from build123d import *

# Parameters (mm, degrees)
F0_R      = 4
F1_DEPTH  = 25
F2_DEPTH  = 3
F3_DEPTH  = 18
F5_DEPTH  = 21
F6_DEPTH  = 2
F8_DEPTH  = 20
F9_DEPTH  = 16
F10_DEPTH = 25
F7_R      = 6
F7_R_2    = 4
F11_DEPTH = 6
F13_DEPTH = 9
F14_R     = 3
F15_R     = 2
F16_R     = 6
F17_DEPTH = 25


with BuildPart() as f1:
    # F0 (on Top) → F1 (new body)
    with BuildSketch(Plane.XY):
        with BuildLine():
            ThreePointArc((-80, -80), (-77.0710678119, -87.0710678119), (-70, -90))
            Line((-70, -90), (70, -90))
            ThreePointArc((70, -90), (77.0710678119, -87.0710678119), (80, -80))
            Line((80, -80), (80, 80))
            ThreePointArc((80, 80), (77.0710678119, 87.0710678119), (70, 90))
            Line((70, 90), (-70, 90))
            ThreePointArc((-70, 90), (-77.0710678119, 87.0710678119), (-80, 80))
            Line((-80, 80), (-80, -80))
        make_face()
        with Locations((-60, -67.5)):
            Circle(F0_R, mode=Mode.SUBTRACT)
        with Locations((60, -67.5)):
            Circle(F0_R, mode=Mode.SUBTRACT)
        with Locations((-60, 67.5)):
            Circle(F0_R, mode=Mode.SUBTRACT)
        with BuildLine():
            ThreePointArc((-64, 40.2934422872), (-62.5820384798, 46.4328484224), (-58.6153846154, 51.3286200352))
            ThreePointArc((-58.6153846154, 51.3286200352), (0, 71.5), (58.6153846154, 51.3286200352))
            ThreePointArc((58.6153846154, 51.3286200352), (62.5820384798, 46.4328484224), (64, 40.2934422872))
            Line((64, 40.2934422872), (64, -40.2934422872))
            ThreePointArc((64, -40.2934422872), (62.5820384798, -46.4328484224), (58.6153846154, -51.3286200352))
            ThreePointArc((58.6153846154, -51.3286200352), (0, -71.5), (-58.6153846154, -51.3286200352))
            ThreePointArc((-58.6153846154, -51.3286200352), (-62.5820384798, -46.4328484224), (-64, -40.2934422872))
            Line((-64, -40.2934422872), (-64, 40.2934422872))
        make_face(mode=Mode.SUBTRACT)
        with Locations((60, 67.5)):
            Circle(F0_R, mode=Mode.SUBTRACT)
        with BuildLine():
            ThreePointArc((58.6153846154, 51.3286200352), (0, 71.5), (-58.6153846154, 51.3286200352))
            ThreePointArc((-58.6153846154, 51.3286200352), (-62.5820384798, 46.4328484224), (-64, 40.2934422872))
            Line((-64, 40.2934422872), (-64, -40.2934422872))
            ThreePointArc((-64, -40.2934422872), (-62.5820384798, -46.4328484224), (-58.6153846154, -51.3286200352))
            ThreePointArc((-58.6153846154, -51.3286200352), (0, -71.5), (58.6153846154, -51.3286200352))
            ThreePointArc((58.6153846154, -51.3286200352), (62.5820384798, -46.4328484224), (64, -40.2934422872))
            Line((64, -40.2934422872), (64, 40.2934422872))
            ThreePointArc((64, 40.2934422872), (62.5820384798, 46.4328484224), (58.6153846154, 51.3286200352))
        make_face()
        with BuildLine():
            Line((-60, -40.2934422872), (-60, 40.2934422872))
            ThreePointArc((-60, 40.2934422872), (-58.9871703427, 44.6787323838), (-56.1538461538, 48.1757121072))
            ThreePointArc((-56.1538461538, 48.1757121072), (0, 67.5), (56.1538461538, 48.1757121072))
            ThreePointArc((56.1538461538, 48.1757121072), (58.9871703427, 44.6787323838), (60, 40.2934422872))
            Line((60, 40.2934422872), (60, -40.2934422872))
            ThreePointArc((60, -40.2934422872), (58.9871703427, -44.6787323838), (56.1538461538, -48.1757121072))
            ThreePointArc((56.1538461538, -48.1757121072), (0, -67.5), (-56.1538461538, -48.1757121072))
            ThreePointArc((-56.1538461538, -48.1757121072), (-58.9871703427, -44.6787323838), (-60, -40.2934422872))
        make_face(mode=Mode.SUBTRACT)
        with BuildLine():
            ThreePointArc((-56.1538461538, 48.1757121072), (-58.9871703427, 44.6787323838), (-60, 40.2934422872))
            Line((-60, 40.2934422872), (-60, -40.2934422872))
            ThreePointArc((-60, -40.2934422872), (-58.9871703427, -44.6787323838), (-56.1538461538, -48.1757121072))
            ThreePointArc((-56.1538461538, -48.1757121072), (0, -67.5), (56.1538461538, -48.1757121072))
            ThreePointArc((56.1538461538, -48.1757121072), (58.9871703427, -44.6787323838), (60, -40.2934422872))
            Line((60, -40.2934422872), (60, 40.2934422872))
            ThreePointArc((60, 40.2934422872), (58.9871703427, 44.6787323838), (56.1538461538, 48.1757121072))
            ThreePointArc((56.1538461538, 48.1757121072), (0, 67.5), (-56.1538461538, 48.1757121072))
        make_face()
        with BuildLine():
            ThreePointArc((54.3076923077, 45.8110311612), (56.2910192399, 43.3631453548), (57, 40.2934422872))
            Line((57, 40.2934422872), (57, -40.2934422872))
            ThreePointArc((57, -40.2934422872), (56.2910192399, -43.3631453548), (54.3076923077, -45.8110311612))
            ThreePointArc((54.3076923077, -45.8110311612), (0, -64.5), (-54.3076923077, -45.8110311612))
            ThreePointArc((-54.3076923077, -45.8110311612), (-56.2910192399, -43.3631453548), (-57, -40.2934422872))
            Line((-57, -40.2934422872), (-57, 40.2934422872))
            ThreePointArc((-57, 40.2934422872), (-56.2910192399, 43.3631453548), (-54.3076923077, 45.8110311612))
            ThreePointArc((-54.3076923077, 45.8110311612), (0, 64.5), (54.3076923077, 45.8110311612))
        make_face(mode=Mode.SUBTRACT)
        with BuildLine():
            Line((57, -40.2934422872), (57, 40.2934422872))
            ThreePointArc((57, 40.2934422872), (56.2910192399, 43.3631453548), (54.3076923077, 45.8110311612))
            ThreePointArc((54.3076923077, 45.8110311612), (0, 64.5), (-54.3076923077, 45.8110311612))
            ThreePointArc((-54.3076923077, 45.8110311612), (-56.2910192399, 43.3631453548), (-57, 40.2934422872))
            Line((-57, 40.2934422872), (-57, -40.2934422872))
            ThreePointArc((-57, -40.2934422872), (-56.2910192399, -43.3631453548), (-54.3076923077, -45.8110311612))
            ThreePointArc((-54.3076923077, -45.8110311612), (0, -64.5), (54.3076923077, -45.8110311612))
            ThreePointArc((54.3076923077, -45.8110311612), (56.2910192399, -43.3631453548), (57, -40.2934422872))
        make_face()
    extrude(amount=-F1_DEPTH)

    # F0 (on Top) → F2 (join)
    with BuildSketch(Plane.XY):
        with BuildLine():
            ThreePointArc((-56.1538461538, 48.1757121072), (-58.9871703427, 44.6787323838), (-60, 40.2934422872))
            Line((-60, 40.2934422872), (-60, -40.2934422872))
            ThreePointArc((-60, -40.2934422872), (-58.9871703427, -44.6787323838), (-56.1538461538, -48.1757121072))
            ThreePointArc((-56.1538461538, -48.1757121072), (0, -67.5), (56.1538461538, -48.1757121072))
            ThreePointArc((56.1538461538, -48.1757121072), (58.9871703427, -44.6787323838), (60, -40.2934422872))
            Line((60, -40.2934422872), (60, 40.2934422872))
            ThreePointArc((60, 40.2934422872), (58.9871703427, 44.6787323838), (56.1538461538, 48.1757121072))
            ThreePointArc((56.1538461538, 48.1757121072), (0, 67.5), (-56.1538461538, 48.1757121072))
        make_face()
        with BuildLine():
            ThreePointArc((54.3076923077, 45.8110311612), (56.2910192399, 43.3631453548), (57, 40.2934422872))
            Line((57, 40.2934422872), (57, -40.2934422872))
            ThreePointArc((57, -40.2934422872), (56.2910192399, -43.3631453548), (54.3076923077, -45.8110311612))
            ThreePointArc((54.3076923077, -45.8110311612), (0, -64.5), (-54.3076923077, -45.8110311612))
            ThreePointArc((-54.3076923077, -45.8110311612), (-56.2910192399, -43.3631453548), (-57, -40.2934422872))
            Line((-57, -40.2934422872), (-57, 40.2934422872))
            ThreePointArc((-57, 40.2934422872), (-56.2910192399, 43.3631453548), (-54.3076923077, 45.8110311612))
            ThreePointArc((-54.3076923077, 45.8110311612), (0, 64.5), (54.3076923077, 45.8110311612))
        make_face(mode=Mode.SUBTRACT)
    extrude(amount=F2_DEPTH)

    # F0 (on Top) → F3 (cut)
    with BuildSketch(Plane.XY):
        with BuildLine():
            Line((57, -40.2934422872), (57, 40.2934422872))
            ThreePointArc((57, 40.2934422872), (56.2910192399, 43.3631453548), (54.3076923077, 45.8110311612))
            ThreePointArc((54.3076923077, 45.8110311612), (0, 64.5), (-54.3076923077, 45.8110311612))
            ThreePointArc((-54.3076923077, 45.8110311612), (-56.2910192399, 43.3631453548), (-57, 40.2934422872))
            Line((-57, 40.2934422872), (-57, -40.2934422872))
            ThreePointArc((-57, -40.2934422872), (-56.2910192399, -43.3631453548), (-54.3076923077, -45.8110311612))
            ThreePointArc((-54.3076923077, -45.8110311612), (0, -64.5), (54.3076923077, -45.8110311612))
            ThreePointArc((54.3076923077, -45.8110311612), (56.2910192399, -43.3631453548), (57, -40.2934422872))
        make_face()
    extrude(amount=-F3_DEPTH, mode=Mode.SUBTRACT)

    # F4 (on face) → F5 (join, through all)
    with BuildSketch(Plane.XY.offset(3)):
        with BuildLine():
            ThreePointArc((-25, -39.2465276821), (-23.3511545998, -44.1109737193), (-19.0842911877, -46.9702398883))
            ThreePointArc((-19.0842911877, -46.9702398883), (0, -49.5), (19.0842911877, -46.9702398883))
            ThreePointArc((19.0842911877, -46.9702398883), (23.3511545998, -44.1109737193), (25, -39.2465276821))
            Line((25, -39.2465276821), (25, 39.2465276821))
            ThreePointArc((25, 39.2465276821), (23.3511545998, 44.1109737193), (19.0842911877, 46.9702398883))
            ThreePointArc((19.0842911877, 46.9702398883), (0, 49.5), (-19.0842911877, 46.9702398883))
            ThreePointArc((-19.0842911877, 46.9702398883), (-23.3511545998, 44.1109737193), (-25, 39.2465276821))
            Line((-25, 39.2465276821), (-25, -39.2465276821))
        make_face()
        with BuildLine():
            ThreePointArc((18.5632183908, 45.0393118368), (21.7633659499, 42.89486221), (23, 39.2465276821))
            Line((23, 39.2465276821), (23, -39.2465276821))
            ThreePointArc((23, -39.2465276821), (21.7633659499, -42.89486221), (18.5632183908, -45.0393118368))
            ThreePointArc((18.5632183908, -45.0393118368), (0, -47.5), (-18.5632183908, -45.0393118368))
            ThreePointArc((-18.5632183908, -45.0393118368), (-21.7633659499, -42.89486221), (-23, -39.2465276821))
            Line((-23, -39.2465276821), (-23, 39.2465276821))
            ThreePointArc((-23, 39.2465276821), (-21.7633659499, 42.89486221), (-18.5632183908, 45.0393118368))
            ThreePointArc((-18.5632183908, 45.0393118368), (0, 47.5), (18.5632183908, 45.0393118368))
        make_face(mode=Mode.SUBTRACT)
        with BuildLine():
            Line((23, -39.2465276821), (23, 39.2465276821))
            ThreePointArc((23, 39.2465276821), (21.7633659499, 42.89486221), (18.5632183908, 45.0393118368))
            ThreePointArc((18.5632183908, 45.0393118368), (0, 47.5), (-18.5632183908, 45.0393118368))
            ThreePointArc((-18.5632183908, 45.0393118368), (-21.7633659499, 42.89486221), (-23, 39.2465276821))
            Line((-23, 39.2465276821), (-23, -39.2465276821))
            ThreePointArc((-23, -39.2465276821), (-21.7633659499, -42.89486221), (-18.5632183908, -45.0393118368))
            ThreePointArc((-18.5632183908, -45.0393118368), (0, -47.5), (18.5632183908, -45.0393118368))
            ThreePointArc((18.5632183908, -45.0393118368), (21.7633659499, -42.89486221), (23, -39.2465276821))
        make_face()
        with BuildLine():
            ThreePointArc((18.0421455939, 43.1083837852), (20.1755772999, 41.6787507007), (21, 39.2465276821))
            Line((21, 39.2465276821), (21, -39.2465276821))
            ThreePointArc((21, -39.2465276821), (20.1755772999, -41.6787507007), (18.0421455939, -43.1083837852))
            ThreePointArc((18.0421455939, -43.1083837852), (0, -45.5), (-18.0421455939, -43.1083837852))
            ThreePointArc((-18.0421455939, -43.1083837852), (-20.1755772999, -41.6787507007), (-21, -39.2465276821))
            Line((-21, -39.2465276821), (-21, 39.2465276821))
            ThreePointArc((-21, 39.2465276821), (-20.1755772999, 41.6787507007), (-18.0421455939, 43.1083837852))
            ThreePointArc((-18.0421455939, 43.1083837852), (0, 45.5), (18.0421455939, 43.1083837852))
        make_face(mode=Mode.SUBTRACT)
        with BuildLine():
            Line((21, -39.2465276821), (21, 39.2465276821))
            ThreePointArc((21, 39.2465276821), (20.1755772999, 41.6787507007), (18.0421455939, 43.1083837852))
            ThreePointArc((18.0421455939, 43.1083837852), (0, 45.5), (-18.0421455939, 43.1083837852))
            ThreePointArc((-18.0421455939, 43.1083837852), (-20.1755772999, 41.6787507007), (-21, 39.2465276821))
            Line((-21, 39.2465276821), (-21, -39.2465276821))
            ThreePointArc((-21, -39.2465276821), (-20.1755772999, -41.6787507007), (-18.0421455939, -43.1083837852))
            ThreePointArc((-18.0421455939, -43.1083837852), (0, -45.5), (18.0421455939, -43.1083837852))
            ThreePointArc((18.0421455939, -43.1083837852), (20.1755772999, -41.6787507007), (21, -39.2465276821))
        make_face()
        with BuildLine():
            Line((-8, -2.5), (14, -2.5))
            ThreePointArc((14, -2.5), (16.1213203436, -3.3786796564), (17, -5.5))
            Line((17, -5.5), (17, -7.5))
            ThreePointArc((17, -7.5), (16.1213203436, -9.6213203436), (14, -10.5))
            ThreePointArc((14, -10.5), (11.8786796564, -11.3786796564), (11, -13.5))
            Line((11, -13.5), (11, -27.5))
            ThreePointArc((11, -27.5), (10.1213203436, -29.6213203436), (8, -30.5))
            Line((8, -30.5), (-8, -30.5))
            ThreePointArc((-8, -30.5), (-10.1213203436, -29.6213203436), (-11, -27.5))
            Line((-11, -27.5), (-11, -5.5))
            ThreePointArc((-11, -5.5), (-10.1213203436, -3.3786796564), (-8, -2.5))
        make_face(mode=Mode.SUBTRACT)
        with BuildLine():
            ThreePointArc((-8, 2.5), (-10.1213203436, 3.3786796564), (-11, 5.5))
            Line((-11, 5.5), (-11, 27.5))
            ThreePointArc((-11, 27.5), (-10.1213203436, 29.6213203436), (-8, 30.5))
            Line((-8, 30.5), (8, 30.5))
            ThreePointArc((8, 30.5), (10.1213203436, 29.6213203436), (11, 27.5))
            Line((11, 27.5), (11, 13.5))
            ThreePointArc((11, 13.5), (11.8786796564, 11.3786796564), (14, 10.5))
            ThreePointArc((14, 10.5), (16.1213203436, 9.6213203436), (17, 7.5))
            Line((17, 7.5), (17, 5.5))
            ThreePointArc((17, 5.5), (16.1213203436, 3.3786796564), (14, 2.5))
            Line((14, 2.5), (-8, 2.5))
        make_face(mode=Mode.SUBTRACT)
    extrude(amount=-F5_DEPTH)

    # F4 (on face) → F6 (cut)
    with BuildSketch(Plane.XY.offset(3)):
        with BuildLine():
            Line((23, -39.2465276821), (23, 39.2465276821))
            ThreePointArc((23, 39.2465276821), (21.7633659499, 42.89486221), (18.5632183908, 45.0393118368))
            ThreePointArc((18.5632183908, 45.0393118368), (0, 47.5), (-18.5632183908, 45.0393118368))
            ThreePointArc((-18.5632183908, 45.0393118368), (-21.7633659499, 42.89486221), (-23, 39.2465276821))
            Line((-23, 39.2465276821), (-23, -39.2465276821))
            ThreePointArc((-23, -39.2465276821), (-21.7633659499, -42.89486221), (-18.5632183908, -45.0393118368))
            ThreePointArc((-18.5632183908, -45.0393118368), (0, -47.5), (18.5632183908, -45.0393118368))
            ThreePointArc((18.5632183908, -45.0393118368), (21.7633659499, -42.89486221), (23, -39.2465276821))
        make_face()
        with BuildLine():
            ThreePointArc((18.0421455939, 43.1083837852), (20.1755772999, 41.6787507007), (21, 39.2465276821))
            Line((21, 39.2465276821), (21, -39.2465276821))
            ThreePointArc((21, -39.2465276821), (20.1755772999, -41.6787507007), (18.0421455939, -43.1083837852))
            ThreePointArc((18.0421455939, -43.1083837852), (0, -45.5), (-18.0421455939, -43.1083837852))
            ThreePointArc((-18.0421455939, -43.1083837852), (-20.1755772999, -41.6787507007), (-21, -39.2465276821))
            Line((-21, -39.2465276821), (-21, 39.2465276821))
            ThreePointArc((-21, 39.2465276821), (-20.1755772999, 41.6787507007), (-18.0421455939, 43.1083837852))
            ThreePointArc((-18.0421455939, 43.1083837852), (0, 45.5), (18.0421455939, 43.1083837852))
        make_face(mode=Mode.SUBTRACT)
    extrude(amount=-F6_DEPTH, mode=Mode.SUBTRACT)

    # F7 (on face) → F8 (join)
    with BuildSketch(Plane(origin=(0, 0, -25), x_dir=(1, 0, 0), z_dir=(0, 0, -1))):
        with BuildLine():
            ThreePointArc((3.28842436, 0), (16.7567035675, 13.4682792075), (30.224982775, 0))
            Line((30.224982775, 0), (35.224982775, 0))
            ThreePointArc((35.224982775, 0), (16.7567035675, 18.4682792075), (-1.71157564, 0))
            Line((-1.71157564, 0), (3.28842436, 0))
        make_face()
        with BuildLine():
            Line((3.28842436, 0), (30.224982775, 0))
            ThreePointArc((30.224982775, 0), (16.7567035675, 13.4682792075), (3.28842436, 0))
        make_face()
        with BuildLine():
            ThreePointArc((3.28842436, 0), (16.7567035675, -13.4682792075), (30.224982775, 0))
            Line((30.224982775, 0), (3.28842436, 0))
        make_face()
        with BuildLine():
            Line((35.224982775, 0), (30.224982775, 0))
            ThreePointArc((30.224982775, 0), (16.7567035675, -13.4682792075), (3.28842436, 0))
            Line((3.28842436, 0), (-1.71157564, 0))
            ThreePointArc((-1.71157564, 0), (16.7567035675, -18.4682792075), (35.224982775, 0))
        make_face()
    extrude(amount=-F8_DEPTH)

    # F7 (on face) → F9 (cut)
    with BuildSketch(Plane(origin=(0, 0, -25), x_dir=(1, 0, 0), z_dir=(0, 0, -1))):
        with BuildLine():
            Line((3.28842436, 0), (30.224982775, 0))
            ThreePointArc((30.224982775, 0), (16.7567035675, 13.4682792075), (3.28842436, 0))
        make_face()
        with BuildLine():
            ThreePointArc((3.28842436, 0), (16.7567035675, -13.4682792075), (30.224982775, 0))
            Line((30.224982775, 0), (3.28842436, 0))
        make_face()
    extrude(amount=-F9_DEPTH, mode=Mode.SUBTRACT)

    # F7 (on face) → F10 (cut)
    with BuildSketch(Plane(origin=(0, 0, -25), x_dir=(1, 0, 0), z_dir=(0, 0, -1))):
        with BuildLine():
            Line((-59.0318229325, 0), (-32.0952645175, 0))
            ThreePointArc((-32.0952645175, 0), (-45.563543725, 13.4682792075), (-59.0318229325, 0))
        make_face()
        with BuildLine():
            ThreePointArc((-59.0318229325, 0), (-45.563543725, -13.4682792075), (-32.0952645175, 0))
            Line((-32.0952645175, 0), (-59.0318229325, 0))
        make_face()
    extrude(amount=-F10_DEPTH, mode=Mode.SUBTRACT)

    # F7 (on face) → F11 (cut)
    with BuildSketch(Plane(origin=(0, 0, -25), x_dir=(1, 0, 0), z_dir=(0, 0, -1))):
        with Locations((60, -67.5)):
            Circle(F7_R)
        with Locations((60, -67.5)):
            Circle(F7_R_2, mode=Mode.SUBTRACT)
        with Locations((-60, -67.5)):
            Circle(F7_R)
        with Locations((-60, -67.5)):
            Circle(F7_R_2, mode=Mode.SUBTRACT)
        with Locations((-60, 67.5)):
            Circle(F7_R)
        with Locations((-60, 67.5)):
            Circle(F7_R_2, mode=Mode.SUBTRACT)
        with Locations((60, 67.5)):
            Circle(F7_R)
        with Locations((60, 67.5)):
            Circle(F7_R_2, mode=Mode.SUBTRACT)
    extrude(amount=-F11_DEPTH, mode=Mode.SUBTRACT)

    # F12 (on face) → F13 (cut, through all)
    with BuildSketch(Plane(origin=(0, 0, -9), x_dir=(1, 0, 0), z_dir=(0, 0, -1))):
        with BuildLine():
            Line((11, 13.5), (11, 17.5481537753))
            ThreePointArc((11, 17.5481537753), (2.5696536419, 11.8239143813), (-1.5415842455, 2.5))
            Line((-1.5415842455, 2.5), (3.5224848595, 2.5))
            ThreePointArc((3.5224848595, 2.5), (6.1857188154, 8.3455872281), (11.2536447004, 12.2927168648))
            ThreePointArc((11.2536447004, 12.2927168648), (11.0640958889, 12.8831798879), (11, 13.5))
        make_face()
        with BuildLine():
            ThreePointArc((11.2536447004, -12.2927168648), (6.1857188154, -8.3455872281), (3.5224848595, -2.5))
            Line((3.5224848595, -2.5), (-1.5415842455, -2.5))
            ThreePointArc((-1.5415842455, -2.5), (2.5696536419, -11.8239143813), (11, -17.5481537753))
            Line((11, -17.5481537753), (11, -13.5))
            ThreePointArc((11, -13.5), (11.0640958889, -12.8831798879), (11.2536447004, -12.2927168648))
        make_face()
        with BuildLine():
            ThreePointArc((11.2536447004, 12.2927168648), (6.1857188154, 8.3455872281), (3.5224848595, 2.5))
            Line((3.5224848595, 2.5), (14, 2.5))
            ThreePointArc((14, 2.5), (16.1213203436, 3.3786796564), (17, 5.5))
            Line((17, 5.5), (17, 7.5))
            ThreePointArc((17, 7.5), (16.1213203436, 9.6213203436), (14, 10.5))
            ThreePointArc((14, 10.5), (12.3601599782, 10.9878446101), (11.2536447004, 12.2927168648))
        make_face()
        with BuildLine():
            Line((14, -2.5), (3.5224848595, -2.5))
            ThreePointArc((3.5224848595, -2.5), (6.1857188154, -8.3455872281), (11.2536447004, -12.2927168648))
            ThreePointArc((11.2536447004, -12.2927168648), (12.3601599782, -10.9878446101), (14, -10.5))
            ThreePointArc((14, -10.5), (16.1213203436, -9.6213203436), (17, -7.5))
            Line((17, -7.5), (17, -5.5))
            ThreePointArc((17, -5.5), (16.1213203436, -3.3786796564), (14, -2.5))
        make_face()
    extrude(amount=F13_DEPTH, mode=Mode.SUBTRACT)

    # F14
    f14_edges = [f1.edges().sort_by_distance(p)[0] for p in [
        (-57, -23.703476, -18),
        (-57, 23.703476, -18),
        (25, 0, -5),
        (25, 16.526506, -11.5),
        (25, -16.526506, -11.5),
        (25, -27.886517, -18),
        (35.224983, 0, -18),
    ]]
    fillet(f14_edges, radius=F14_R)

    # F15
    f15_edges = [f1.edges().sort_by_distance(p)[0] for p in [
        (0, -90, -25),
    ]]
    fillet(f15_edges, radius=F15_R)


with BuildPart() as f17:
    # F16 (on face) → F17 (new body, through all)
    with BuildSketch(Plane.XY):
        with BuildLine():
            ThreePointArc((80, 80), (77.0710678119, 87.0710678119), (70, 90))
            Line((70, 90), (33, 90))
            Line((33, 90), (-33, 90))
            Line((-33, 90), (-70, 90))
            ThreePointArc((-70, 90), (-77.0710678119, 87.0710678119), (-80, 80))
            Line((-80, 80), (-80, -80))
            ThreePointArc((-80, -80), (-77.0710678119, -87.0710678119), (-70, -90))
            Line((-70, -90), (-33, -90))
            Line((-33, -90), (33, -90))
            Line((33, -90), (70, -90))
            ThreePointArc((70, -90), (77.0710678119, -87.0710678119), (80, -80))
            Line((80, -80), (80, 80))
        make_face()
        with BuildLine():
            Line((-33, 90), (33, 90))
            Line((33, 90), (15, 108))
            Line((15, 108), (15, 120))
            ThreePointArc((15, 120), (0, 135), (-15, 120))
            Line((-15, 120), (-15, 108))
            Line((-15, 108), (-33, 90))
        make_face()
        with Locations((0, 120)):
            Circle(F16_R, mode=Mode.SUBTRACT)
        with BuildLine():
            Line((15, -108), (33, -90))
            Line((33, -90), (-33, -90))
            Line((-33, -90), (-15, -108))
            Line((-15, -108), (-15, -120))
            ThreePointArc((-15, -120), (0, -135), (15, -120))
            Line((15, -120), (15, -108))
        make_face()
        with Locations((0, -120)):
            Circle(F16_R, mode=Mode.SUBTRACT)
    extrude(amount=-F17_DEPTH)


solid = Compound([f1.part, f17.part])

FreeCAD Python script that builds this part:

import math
import FreeCAD as App
import Part
import Sketcher

V = App.Vector


def edges_at(feature, points):
    """Names of the edges that pass closest to the given points."""
    edges = feature.Shape.Edges
    near = lambda p: min(range(len(edges)), key=lambda i: edges[i].distToShape(Part.Vertex(*p))[0])
    return sorted({f"Edge{near(p) + 1}" for p in points})

doc = App.newDocument("Part")
body = doc.addObject("PartDesign::Body", "Body")

# Sketch on XY plane
sketch1 = body.newObject("Sketcher::SketchObject", "Sketch")
sketch1.AttachmentSupport = (doc.getObject("XY_Plane"), [""])
sketch1.MapMode = "FlatFace"
sketch1.addGeometry([
    Part.ArcOfCircle(Part.Circle(V(-70, -80, 0), V(0, 0, 1), 10), math.radians(180), math.radians(270)),  # 0
    Part.LineSegment(V(-70, -90, 0), V(70, -90, 0)),  # 1
    Part.ArcOfCircle(Part.Circle(V(70, -80, 0), V(0, 0, 1), 10), math.radians(-90), math.radians(0)),  # 2
    Part.LineSegment(V(80, -80, 0), V(80, 80, 0)),  # 3
    Part.ArcOfCircle(Part.Circle(V(70, 80, 0), V(0, 0, 1), 10), math.radians(0), math.radians(90)),  # 4
    Part.LineSegment(V(70, 90, 0), V(-70, 90, 0)),  # 5
    Part.ArcOfCircle(Part.Circle(V(-70, 80, 0), V(0, 0, 1), 10), math.radians(90), math.radians(180)),  # 6
    Part.LineSegment(V(-80, 80, 0), V(-80, -80, 0)),  # 7
    Part.Circle(V(-60, -67.5, 0), V(0, 0, 1), 4),  # 8
    Part.Circle(V(60, -67.5, 0), V(0, 0, 1), 4),  # 9
    Part.Circle(V(-60, 67.5, 0), V(0, 0, 1), 4),  # 10
    Part.Circle(V(60, 67.5, 0), V(0, 0, 1), 4),  # 11
], False)
sketch1.addConstraint([
    Sketcher.Constraint("Tangent", 0, 2, 1, 1),
    Sketcher.Constraint("Tangent", 1, 2, 2, 1),
    Sketcher.Constraint("Tangent", 2, 2, 3, 1),
    Sketcher.Constraint("Tangent", 3, 2, 4, 1),
    Sketcher.Constraint("Tangent", 4, 2, 5, 1),
    Sketcher.Constraint("Tangent", 5, 2, 6, 1),
    Sketcher.Constraint("Tangent", 6, 2, 7, 1),
    Sketcher.Constraint("Tangent", 7, 2, 0, 1),
    Sketcher.Constraint("Horizontal", 1),
    Sketcher.Constraint("Vertical", 3),
    Sketcher.Constraint("Horizontal", 5),
    Sketcher.Constraint("Vertical", 7),
    Sketcher.Constraint("Equal", 0, 2),
    Sketcher.Constraint("Equal", 2, 4),
    Sketcher.Constraint("Equal", 4, 6),
    Sketcher.Constraint("Equal", 8, 9),
    Sketcher.Constraint("Equal", 9, 10),
    Sketcher.Constraint("Equal", 10, 11),
    Sketcher.Constraint("Symmetric", 0, 3, 4, 3, -1, 1),
    Sketcher.Constraint("Symmetric", 9, 3, 10, 3, -1, 1),
    Sketcher.Constraint("Symmetric", 8, 3, 11, 3, -1, 1),
    Sketcher.Constraint("Symmetric", 8, 3, 9, 3, -2),
    Sketcher.Constraint("Diameter", 8, 8.0),
    Sketcher.Constraint("Radius", 0, 10.0),
    Sketcher.Constraint("DistanceX", 1, 1, 1, 2, 140.0),
    Sketcher.Constraint("DistanceY", 3, 1, 3, 2, 160.0),
    Sketcher.Constraint("DistanceX", 8, 3, -1, 1, 60.0),
    Sketcher.Constraint("DistanceY", 8, 3, 10, 3, 135.0),
])
pad1 = body.newObject("PartDesign::Pad", "Pad")
pad1.Profile = sketch1
pad1.Length = 25
pad1.Reversed = True

# Sketch on XY plane
sketch2 = body.newObject("Sketcher::SketchObject", "Sketch001")
sketch2.AttachmentSupport = (doc.getObject("XY_Plane"), [""])
sketch2.MapMode = "FlatFace"
sketch2.addGeometry([
    Part.ArcOfCircle(Part.Circle(V(-50, 40, 0), V(0, 0, 1), 10), math.radians(128), math.radians(180)),  # 0
    Part.LineSegment(V(-60, 40, 0), V(-60, -40, 0)),  # 1
    Part.ArcOfCircle(Part.Circle(V(-50, -40, 0), V(0, 0, 1), 10), math.radians(180), math.radians(232)),  # 2
    Part.ArcOfCircle(Part.Circle(V(0, 24, 0), V(0, 0, 1), 91), math.radians(-128), math.radians(-52)),  # 3
    Part.ArcOfCircle(Part.Circle(V(50, -40, 0), V(0, 0, 1), 10), math.radians(-52), math.radians(0)),  # 4
    Part.LineSegment(V(60, -40, 0), V(60, 40, 0)),  # 5
    Part.ArcOfCircle(Part.Circle(V(50, 40, 0), V(0, 0, 1), 10), math.radians(0), math.radians(52)),  # 6
    Part.ArcOfCircle(Part.Circle(V(0, -24, 0), V(0, 0, 1), 91), math.radians(52), math.radians(128)),  # 7
    Part.ArcOfCircle(Part.Circle(V(0, -24, 0), V(0, 0, 1), 88), math.radians(52), math.radians(128)),  # 8
    Part.ArcOfCircle(Part.Circle(V(50, 40, 0), V(0, 0, 1), 7), math.radians(0), math.radians(52)),  # 9
    Part.LineSegment(V(57, 40, 0), V(57, -40, 0)),  # 10
    Part.ArcOfCircle(Part.Circle(V(50, -40, 0), V(0, 0, 1), 7), math.radians(-52), math.radians(0)),  # 11
    Part.ArcOfCircle(Part.Circle(V(0, 24, 0), V(0, 0, 1), 88), math.radians(-128), math.radians(-52)),  # 12
    Part.ArcOfCircle(Part.Circle(V(-50, -40, 0), V(0, 0, 1), 7), math.radians(180), math.radians(232)),  # 13
    Part.LineSegment(V(-57, -40, 0), V(-57, 40, 0)),  # 14
    Part.ArcOfCircle(Part.Circle(V(-50, 40, 0), V(0, 0, 1), 7), math.radians(128), math.radians(180)),  # 15
], False)
sketch2.addConstraint([
    Sketcher.Constraint("Tangent", 0, 2, 1, 1),
    Sketcher.Constraint("Tangent", 1, 2, 2, 1),
    Sketcher.Constraint("Tangent", 2, 2, 3, 1),
    Sketcher.Constraint("Tangent", 3, 2, 4, 1),
    Sketcher.Constraint("Tangent", 4, 2, 5, 1),
    Sketcher.Constraint("Tangent", 5, 2, 6, 1),
    Sketcher.Constraint("Tangent", 6, 2, 7, 1),
    Sketcher.Constraint("Tangent", 7, 2, 0, 1),
    Sketcher.Constraint("Tangent", 8, 1, 9, 2),
    Sketcher.Constraint("Tangent", 9, 1, 10, 1),
    Sketcher.Constraint("Tangent", 10, 2, 11, 2),
    Sketcher.Constraint("Tangent", 11, 1, 12, 2),
    Sketcher.Constraint("Tangent", 12, 1, 13, 2),
    Sketcher.Constraint("Tangent", 13, 1, 14, 1),
    Sketcher.Constraint("Tangent", 14, 2, 15, 2),
    Sketcher.Constraint("Tangent", 15, 1, 8, 2),
    Sketcher.Constraint("Vertical", 1),
    Sketcher.Constraint("Vertical", 5),
    Sketcher.Constraint("Vertical", 10),
    Sketcher.Constraint("Vertical", 14),
    Sketcher.Constraint("Coincident", 8, 3, 7, 3),
    Sketcher.Constraint("Coincident", 9, 3, 6, 3),
    Sketcher.Constraint("Coincident", 11, 3, 4, 3),
    Sketcher.Constraint("Coincident", 12, 3, 3, 3),
    Sketcher.Constraint("Coincident", 13, 3, 2, 3),
    Sketcher.Constraint("Equal", 0, 2),
    Sketcher.Constraint("Equal", 2, 4),
    Sketcher.Constraint("Equal", 4, 6),
    Sketcher.Constraint("Equal", 3, 7),
    Sketcher.Constraint("Equal", 13, 15),
    Sketcher.Constraint("Symmetric", 0, 3, 4, 3, -1, 1),
    Sketcher.Constraint("Symmetric", 3, 3, 7, 3, -1),
    Sketcher.Constraint("Radius", 0, 10.0),
    Sketcher.Constraint("Radius", 9, 7.0),
    Sketcher.Constraint("Radius", 3, 91.25),
    Sketcher.Constraint("DistanceX", 0, 3, -1, 1, 50.0),
    Sketcher.Constraint("DistanceY", 7, 3, 3, 3, 47.5),
])
pad2 = body.newObject("PartDesign::Pad", "Pad001")
pad2.Profile = sketch2
pad2.Length = 3

# Sketch on XY plane
sketch3 = body.newObject("Sketcher::SketchObject", "Sketch002")
sketch3.AttachmentSupport = (doc.getObject("XY_Plane"), [""])
sketch3.MapMode = "FlatFace"
sketch3.addGeometry([
    Part.LineSegment(V(57, -40, 0), V(57, 40, 0)),  # 0
    Part.ArcOfCircle(Part.Circle(V(50, 40, 0), V(0, 0, 1), 7), math.radians(0), math.radians(52)),  # 1
    Part.ArcOfCircle(Part.Circle(V(0, -24, 0), V(0, 0, 1), 88), math.radians(52), math.radians(128)),  # 2
    Part.ArcOfCircle(Part.Circle(V(-50, 40, 0), V(0, 0, 1), 7), math.radians(128), math.radians(180)),  # 3
    Part.LineSegment(V(-57, 40, 0), V(-57, -40, 0)),  # 4
    Part.ArcOfCircle(Part.Circle(V(-50, -40, 0), V(0, 0, 1), 7), math.radians(180), math.radians(232)),  # 5
    Part.ArcOfCircle(Part.Circle(V(0, 24, 0), V(0, 0, 1), 88), math.radians(-128), math.radians(-52)),  # 6
    Part.ArcOfCircle(Part.Circle(V(50, -40, 0), V(0, 0, 1), 7), math.radians(-52), math.radians(0)),  # 7
], False)
sketch3.addConstraint([
    Sketcher.Constraint("Tangent", 0, 2, 1, 1),
    Sketcher.Constraint("Tangent", 1, 2, 2, 1),
    Sketcher.Constraint("Tangent", 2, 2, 3, 1),
    Sketcher.Constraint("Tangent", 3, 2, 4, 1),
    Sketcher.Constraint("Tangent", 4, 2, 5, 1),
    Sketcher.Constraint("Tangent", 5, 2, 6, 1),
    Sketcher.Constraint("Tangent", 6, 2, 7, 1),
    Sketcher.Constraint("Tangent", 7, 2, 0, 1),
    Sketcher.Constraint("Vertical", 0),
    Sketcher.Constraint("Vertical", 4),
    Sketcher.Constraint("Equal", 1, 3),
    Sketcher.Constraint("Equal", 3, 5),
    Sketcher.Constraint("Equal", 2, 6),
    Sketcher.Constraint("Equal", 5, 7),
    Sketcher.Constraint("Symmetric", 1, 3, 5, 3, -1, 1),
    Sketcher.Constraint("Symmetric", 2, 3, 6, 3, -1),
    Sketcher.Constraint("Radius", 1, 7.0),
    Sketcher.Constraint("Radius", 2, 88.25),
    Sketcher.Constraint("DistanceX", -1, 1, 1, 3, 50.0),
    Sketcher.Constraint("DistanceY", 2, 3, 6, 3, 47.5),
])
pocket1 = body.newObject("PartDesign::Pocket", "Pocket")
pocket1.Profile = sketch3
pocket1.Length = 18

# Sketch on XY plane
sketch4 = body.newObject("Sketcher::SketchObject", "Sketch003")
sketch4.AttachmentSupport = (doc.getObject("XY_Plane"), [""])
sketch4.MapMode = "FlatFace"
sketch4.AttachmentOffset = App.Placement(V(0, 0, 3), App.Rotation())
sketch4.addGeometry([
    Part.ArcOfCircle(Part.Circle(V(-17, -39.2, 0), V(0, 0, 1), 8), math.radians(180), math.radians(255)),  # 0
    Part.ArcOfCircle(Part.Circle(V(0, 23.7, 0), V(0, 0, 1), 73.2), math.radians(-105), math.radians(-75)),  # 1
    Part.ArcOfCircle(Part.Circle(V(17, -39.2, 0), V(0, 0, 1), 8), math.radians(-75), math.radians(0)),  # 2
    Part.LineSegment(V(25, -39.2, 0), V(25, 39.2, 0)),  # 3
    Part.ArcOfCircle(Part.Circle(V(17, 39.2, 0), V(0, 0, 1), 8), math.radians(0), math.radians(75)),  # 4
    Part.ArcOfCircle(Part.Circle(V(0, -23.7, 0), V(0, 0, 1), 73.2), math.radians(75), math.radians(105)),  # 5
    Part.ArcOfCircle(Part.Circle(V(-17, 39.2, 0), V(0, 0, 1), 8), math.radians(105), math.radians(180)),  # 6
    Part.LineSegment(V(-25, 39.2, 0), V(-25, -39.2, 0)),  # 7
    Part.ArcOfCircle(Part.Circle(V(-8, -5.5, 0), V(0, 0, 1), 3), math.radians(90), math.radians(180)),  # 8
    Part.LineSegment(V(-8, -2.5, 0), V(14, -2.5, 0)),  # 9
    Part.ArcOfCircle(Part.Circle(V(14, -5.5, 0), V(0, 0, 1), 3), math.radians(0), math.radians(90)),  # 10
    Part.LineSegment(V(17, -5.5, 0), V(17, -7.5, 0)),  # 11
    Part.ArcOfCircle(Part.Circle(V(14, -7.5, 0), V(0, 0, 1), 3), math.radians(-90), math.radians(0)),  # 12
    Part.ArcOfCircle(Part.Circle(V(14, -13.5, 0), V(0, 0, 1), 3), math.radians(90), math.radians(180)),  # 13
    Part.LineSegment(V(11, -13.5, 0), V(11, -27.5, 0)),  # 14
    Part.ArcOfCircle(Part.Circle(V(8, -27.5, 0), V(0, 0, 1), 3), math.radians(-90), math.radians(0)),  # 15
    Part.LineSegment(V(8, -30.5, 0), V(-8, -30.5, 0)),  # 16
    Part.ArcOfCircle(Part.Circle(V(-8, -27.5, 0), V(0, 0, 1), 3), math.radians(180), math.radians(270)),  # 17
    Part.LineSegment(V(-11, -27.5, 0), V(-11, -5.5, 0)),  # 18
    Part.LineSegment(V(14, 2.5, 0), V(-8, 2.5, 0)),  # 19
    Part.ArcOfCircle(Part.Circle(V(-8, 5.5, 0), V(0, 0, 1), 3), math.radians(180), math.radians(270)),  # 20
    Part.LineSegment(V(-11, 5.5, 0), V(-11, 27.5, 0)),  # 21
    Part.ArcOfCircle(Part.Circle(V(-8, 27.5, 0), V(0, 0, 1), 3), math.radians(90), math.radians(180)),  # 22
    Part.LineSegment(V(-8, 30.5, 0), V(8, 30.5, 0)),  # 23
    Part.ArcOfCircle(Part.Circle(V(8, 27.5, 0), V(0, 0, 1), 3), math.radians(0), math.radians(90)),  # 24
    Part.LineSegment(V(11, 27.5, 0), V(11, 13.5, 0)),  # 25
    Part.ArcOfCircle(Part.Circle(V(14, 13.5, 0), V(0, 0, 1), 3), math.radians(180), math.radians(270)),  # 26
    Part.ArcOfCircle(Part.Circle(V(14, 7.5, 0), V(0, 0, 1), 3), math.radians(0), math.radians(90)),  # 27
    Part.LineSegment(V(17, 7.5, 0), V(17, 5.5, 0)),  # 28
    Part.ArcOfCircle(Part.Circle(V(14, 5.5, 0), V(0, 0, 1), 3), math.radians(-90), math.radians(0)),  # 29
], False)
sketch4.addConstraint([
    Sketcher.Constraint("Tangent", 0, 2, 1, 1),
    Sketcher.Constraint("Tangent", 1, 2, 2, 1),
    Sketcher.Constraint("Tangent", 2, 2, 3, 1),
    Sketcher.Constraint("Tangent", 3, 2, 4, 1),
    Sketcher.Constraint("Tangent", 4, 2, 5, 1),
    Sketcher.Constraint("Tangent", 5, 2, 6, 1),
    Sketcher.Constraint("Tangent", 6, 2, 7, 1),
    Sketcher.Constraint("Tangent", 7, 2, 0, 1),
    Sketcher.Constraint("Tangent", 8, 1, 9, 1),
    Sketcher.Constraint("Tangent", 9, 2, 10, 2),
    Sketcher.Constraint("Tangent", 10, 1, 11, 1),
    Sketcher.Constraint("Tangent", 11, 2, 12, 2),
    Sketcher.Constraint("Tangent", 12, 1, 13, 1),
    Sketcher.Constraint("Tangent", 13, 2, 14, 1),
    Sketcher.Constraint("Tangent", 14, 2, 15, 2),
    Sketcher.Constraint("Tangent", 15, 1, 16, 1),
    Sketcher.Constraint("Tangent", 16, 2, 17, 2),
    Sketcher.Constraint("Tangent", 17, 1, 18, 1),
    Sketcher.Constraint("Tangent", 18, 2, 8, 2),
    Sketcher.Constraint("Tangent", 19, 2, 20, 2),
    Sketcher.Constraint("Tangent", 20, 1, 21, 1),
    Sketcher.Constraint("Tangent", 21, 2, 22, 2),
    Sketcher.Constraint("Tangent", 22, 1, 23, 1),
    Sketcher.Constraint("Tangent", 23, 2, 24, 2),
    Sketcher.Constraint("Tangent", 24, 1, 25, 1),
    Sketcher.Constraint("Tangent", 25, 2, 26, 1),
    Sketcher.Constraint("Tangent", 26, 2, 27, 2),
    Sketcher.Constraint("Tangent", 27, 1, 28, 1),
    Sketcher.Constraint("Tangent", 28, 2, 29, 2),
    Sketcher.Constraint("Tangent", 29, 1, 19, 1),
    Sketcher.Constraint("Vertical", 3),
    Sketcher.Constraint("Vertical", 7),
    Sketcher.Constraint("Horizontal", 9),
    Sketcher.Constraint("Vertical", 11),
    Sketcher.Constraint("Vertical", 14),
    Sketcher.Constraint("Horizontal", 16),
    Sketcher.Constraint("Vertical", 18),
    Sketcher.Constraint("Horizontal", 19),
    Sketcher.Constraint("Vertical", 21),
    Sketcher.Constraint("Horizontal", 23),
    Sketcher.Constraint("Vertical", 25),
    Sketcher.Constraint("Vertical", 28),
    Sketcher.Constraint("Equal", 0, 2),
    Sketcher.Constraint("Equal", 2, 4),
    Sketcher.Constraint("Equal", 1, 5),
    Sketcher.Constraint("Equal", 4, 6),
    Sketcher.Constraint("Equal", 8, 10),
    Sketcher.Constraint("Equal", 10, 12),
    Sketcher.Constraint("Equal", 12, 13),
    Sketcher.Constraint("Equal", 13, 15),
    Sketcher.Constraint("Equal", 15, 17),
    Sketcher.Constraint("Equal", 17, 20),
    Sketcher.Constraint("Equal", 20, 22),
    Sketcher.Constraint("Equal", 22, 24),
    Sketcher.Constraint("Equal", 24, 26),
    Sketcher.Constraint("Equal", 26, 27),
    Sketcher.Constraint("Equal", 27, 29),
    Sketcher.Constraint("Symmetric", 0, 3, 4, 3, -1, 1),
    Sketcher.Constraint("Symmetric", 15, 3, 22, 3, -1, 1),
    Sketcher.Constraint("Symmetric", 1, 3, 5, 3, -1),
    Sketcher.Constraint("Symmetric", 8, 3, 20, 3, -1),
    Sketcher.Constraint("Symmetric", 13, 3, 26, 3, -1),
    Sketcher.Constraint("Vertical", 12, 3, 13, 3),
    Sketcher.Constraint("Vertical", 26, 3, 27, 3),
    Sketcher.Constraint("Vertical", 4, 3, 10, 1),
    Sketcher.Constraint("Equal", 19, 18),
    Sketcher.Constraint("Radius", 0, 8.0),
    Sketcher.Constraint("Radius", 8, 3.0),
    Sketcher.Constraint("DistanceX", 9, 1, 9, 2, 22.0),
    Sketcher.Constraint("DistanceY", 11, 2, 11, 1, 2.0),
    Sketcher.Constraint("Radius", 1, 73.25),
    Sketcher.Constraint("DistanceY", 8, 3, 20, 3, 11.0),
    Sketcher.Constraint("DistanceY", 5, 3, 1, 3, 47.5),
])
pad3 = body.newObject("PartDesign::Pad", "Pad002")
pad3.Profile = sketch4
pad3.Type = "UpToLast"
pad3.Reversed = True

# Sketch on XY plane
sketch5 = body.newObject("Sketcher::SketchObject", "Sketch004")
sketch5.AttachmentSupport = (doc.getObject("XY_Plane"), [""])
sketch5.MapMode = "FlatFace"
sketch5.AttachmentOffset = App.Placement(V(0, 0, 3), App.Rotation())
sketch5.addGeometry([
    Part.LineSegment(V(23, -39.2, 0), V(23, 39.2, 0)),  # 0
    Part.ArcOfCircle(Part.Circle(V(17, 39.2, 0), V(0, 0, 1), 6), math.radians(0), math.radians(75)),  # 1
    Part.ArcOfCircle(Part.Circle(V(0, -23.8, 0), V(0, 0, 1), 71.3), math.radians(75), math.radians(105)),  # 2
    Part.ArcOfCircle(Part.Circle(V(-17, 39.2, 0), V(0, 0, 1), 6), math.radians(105), math.radians(180)),  # 3
    Part.LineSegment(V(-23, 39.2, 0), V(-23, -39.2, 0)),  # 4
    Part.ArcOfCircle(Part.Circle(V(-17, -39.2, 0), V(0, 0, 1), 6), math.radians(180), math.radians(255)),  # 5
    Part.ArcOfCircle(Part.Circle(V(0, 23.8, 0), V(0, 0, 1), 71.3), math.radians(-105), math.radians(-75)),  # 6
    Part.ArcOfCircle(Part.Circle(V(17, -39.2, 0), V(0, 0, 1), 6), math.radians(-75), math.radians(0)),  # 7
    Part.ArcOfCircle(Part.Circle(V(0, -23.8, 0), V(0, 0, 1), 69.2), math.radians(75), math.radians(105)),  # 8
    Part.ArcOfCircle(Part.Circle(V(17, 39.2, 0), V(0, 0, 1), 4), math.radians(0), math.radians(75)),  # 9
    Part.LineSegment(V(21, 39.2, 0), V(21, -39.2, 0)),  # 10
    Part.ArcOfCircle(Part.Circle(V(17, -39.2, 0), V(0, 0, 1), 4), math.radians(-75), math.radians(0)),  # 11
    Part.ArcOfCircle(Part.Circle(V(0, 23.8, 0), V(0, 0, 1), 69.2), math.radians(-105), math.radians(-75)),  # 12
    Part.ArcOfCircle(Part.Circle(V(-17, -39.2, 0), V(0, 0, 1), 4), math.radians(180), math.radians(255)),  # 13
    Part.LineSegment(V(-21, -39.2, 0), V(-21, 39.2, 0)),  # 14
    Part.ArcOfCircle(Part.Circle(V(-17, 39.2, 0), V(0, 0, 1), 4), math.radians(105), math.radians(180)),  # 15
], False)
sketch5.addConstraint([
    Sketcher.Constraint("Tangent", 0, 2, 1, 1),
    Sketcher.Constraint("Tangent", 1, 2, 2, 1),
    Sketcher.Constraint("Tangent", 2, 2, 3, 1),
    Sketcher.Constraint("Tangent", 3, 2, 4, 1),
    Sketcher.Constraint("Tangent", 4, 2, 5, 1),
    Sketcher.Constraint("Tangent", 5, 2, 6, 1),
    Sketcher.Constraint("Tangent", 6, 2, 7, 1),
    Sketcher.Constraint("Tangent", 7, 2, 0, 1),
    Sketcher.Constraint("Tangent", 8, 1, 9, 2),
    Sketcher.Constraint("Tangent", 9, 1, 10, 1),
    Sketcher.Constraint("Tangent", 10, 2, 11, 2),
    Sketcher.Constraint("Tangent", 11, 1, 12, 2),
    Sketcher.Constraint("Tangent", 12, 1, 13, 2),
    Sketcher.Constraint("Tangent", 13, 1, 14, 1),
    Sketcher.Constraint("Tangent", 14, 2, 15, 2),
    Sketcher.Constraint("Tangent", 15, 1, 8, 2),
    Sketcher.Constraint("Vertical", 0),
    Sketcher.Constraint("Vertical", 4),
    Sketcher.Constraint("Vertical", 10),
    Sketcher.Constraint("Vertical", 14),
    Sketcher.Constraint("Coincident", 8, 3, 2, 3),
    Sketcher.Constraint("Coincident", 9, 3, 1, 3),
    Sketcher.Constraint("Coincident", 11, 3, 7, 3),
    Sketcher.Constraint("Coincident", 12, 3, 6, 3),
    Sketcher.Constraint("Coincident", 13, 3, 5, 3),
    Sketcher.Constraint("Equal", 1, 3),
    Sketcher.Constraint("Equal", 3, 5),
    Sketcher.Constraint("Equal", 2, 6),
    Sketcher.Constraint("Equal", 5, 7),
    Sketcher.Constraint("Equal", 13, 15),
    Sketcher.Constraint("Symmetric", 1, 3, 5, 3, -1, 1),
    Sketcher.Constraint("Symmetric", 2, 3, 6, 3, -1),
    Sketcher.Constraint("Radius", 1, 6.0),
    Sketcher.Constraint("Radius", 9, 4.0),
    Sketcher.Constraint("Radius", 2, 71.25),
    Sketcher.Constraint("DistanceX", -1, 1, 1, 3, 17.0),
    Sketcher.Constraint("DistanceY", 2, 3, 6, 3, 47.5),
])
pocket2 = body.newObject("PartDesign::Pocket", "Pocket001")
pocket2.Profile = sketch5
pocket2.Length = 2

# Sketch on XY plane
sketch6 = body.newObject("Sketcher::SketchObject", "Sketch005")
sketch6.AttachmentSupport = (doc.getObject("XY_Plane"), [""])
sketch6.MapMode = "FlatFace"
sketch6.AttachmentOffset = App.Placement(V(0, 0, -25), App.Rotation())
sketch6.addGeometry(Part.Circle(V(17, 0, 0), V(0, 0, 1), 18), False)
sketch6.addConstraint([
    Sketcher.Constraint("PointOnObject", 0, 3, -1),
    Sketcher.Constraint("Diameter", 0, 36.936558),
    Sketcher.Constraint("DistanceX", -1, 1, 0, 3, 16.756704),
])
pad4 = body.newObject("PartDesign::Pad", "Pad003")
pad4.Profile = sketch6
pad4.Length = 20

# Sketch on XY plane
sketch7 = body.newObject("Sketcher::SketchObject", "Sketch006")
sketch7.AttachmentSupport = (doc.getObject("XY_Plane"), [""])
sketch7.MapMode = "FlatFace"
sketch7.AttachmentOffset = App.Placement(V(0, 0, -25), App.Rotation())
sketch7.addGeometry(Part.Circle(V(17, 0, 0), V(0, 0, 1), 13), False)
sketch7.addConstraint([
    Sketcher.Constraint("PointOnObject", 0, 3, -1),
    Sketcher.Constraint("Diameter", 0, 26.936558),
    Sketcher.Constraint("DistanceX", -1, 1, 0, 3, 16.756704),
])
pocket3 = body.newObject("PartDesign::Pocket", "Pocket002")
pocket3.Profile = sketch7
pocket3.Length = 16
pocket3.Reversed = True

# Sketch on XY plane
sketch8 = body.newObject("Sketcher::SketchObject", "Sketch007")
sketch8.AttachmentSupport = (doc.getObject("XY_Plane"), [""])
sketch8.MapMode = "FlatFace"
sketch8.AttachmentOffset = App.Placement(V(0, 0, -25), App.Rotation())
sketch8.addGeometry(Part.Circle(V(-46, 0, 0), V(0, 0, 1), 13), False)
sketch8.addConstraint([
    Sketcher.Constraint("PointOnObject", 0, 3, -1),
    Sketcher.Constraint("Diameter", 0, 26.936558),
    Sketcher.Constraint("DistanceX", 0, 3, -1, 1, 45.563544),
])
pocket4 = body.newObject("PartDesign::Pocket", "Pocket003")
pocket4.Profile = sketch8
pocket4.Length = 25
pocket4.Reversed = True

# Sketch on XY plane
sketch9 = body.newObject("Sketcher::SketchObject", "Sketch008")
sketch9.AttachmentSupport = (doc.getObject("XY_Plane"), [""])
sketch9.MapMode = "FlatFace"
sketch9.AttachmentOffset = App.Placement(V(0, 0, -25), App.Rotation())
sketch9.addGeometry([
    Part.Circle(V(60, 67.5, 0), V(0, 0, 1), 6),  # 0
    Part.Circle(V(60, 67.5, 0), V(0, 0, 1), 4),  # 1
    Part.Circle(V(-60, 67.5, 0), V(0, 0, 1), 6),  # 2
    Part.Circle(V(-60, 67.5, 0), V(0, 0, 1), 4),  # 3
    Part.Circle(V(-60, -67.5, 0), V(0, 0, 1), 6),  # 4
    Part.Circle(V(-60, -67.5, 0), V(0, 0, 1), 4),  # 5
    Part.Circle(V(60, -67.5, 0), V(0, 0, 1), 6),  # 6
    Part.Circle(V(60, -67.5, 0), V(0, 0, 1), 4),  # 7
], False)
sketch9.addConstraint([
    Sketcher.Constraint("Coincident", 1, 3, 0, 3),
    Sketcher.Constraint("Coincident", 3, 3, 2, 3),
    Sketcher.Constraint("Coincident", 5, 3, 4, 3),
    Sketcher.Constraint("Coincident", 7, 3, 6, 3),
    Sketcher.Constraint("Equal", 0, 2),
    Sketcher.Constraint("Equal", 1, 3),
    Sketcher.Constraint("Equal", 2, 4),
    Sketcher.Constraint("Equal", 3, 5),
    Sketcher.Constraint("Equal", 4, 6),
    Sketcher.Constraint("Equal", 5, 7),
    Sketcher.Constraint("Symmetric", 0, 3, 4, 3, -1, 1),
    Sketcher.Constraint("Symmetric", 2, 3, 6, 3, -1, 1),
    Sketcher.Constraint("Symmetric", 0, 3, 2, 3, -2),
    Sketcher.Constraint("Diameter", 0, 12.0),
    Sketcher.Constraint("Diameter", 1, 8.0),
    Sketcher.Constraint("DistanceX", -1, 1, 0, 3, 60.0),
    Sketcher.Constraint("DistanceY", 4, 3, 2, 3, 135.0),
])
pocket5 = body.newObject("PartDesign::Pocket", "Pocket004")
pocket5.Profile = sketch9
pocket5.Length = 6
pocket5.Reversed = True

# Sketch on XY plane
sketch10 = body.newObject("Sketcher::SketchObject", "Sketch009")
sketch10.AttachmentSupport = (doc.getObject("XY_Plane"), [""])
sketch10.MapMode = "FlatFace"
sketch10.AttachmentOffset = App.Placement(V(0, 0, -9), App.Rotation())
sketch10.addGeometry([
    Part.LineSegment(V(11, -13.5, 0), V(11, -17.5, 0)),  # 0
    Part.ArcOfCircle(Part.Circle(V(16.8, 0, 0), V(0, 0, 1), 18.5), math.radians(-172), math.radians(-108)),  # 1
    Part.LineSegment(V(-1.5, -2.5, 0), V(14, -2.5, 0)),  # 2
    Part.ArcOfCircle(Part.Circle(V(14, -5.5, 0), V(0, 0, 1), 3), math.radians(0), math.radians(90)),  # 3
    Part.LineSegment(V(17, -5.5, 0), V(17, -7.5, 0)),  # 4
    Part.ArcOfCircle(Part.Circle(V(14, -7.5, 0), V(0, 0, 1), 3), math.radians(-90), math.radians(0)),  # 5
    Part.ArcOfCircle(Part.Circle(V(14, -13.5, 0), V(0, 0, 1), 3), math.radians(90), math.radians(156)),  # 6
    Part.ArcOfCircle(Part.Circle(V(14, -13.5, 0), V(0, 0, 1), 3), math.radians(156), math.radians(180)),  # 7
    Part.ArcOfCircle(Part.Circle(V(16.8, 0, 0), V(0, 0, 1), 18.5), math.radians(108), math.radians(172)),  # 8
    Part.LineSegment(V(11, 17.5, 0), V(11, 13.5, 0)),  # 9
    Part.ArcOfCircle(Part.Circle(V(14, 13.5, 0), V(0, 0, 1), 3), math.radians(180), math.radians(204)),  # 10
    Part.ArcOfCircle(Part.Circle(V(14, 13.5, 0), V(0, 0, 1), 3), math.radians(-156), math.radians(-90)),  # 11
    Part.ArcOfCircle(Part.Circle(V(14, 7.5, 0), V(0, 0, 1), 3), math.radians(0), math.radians(90)),  # 12
    Part.LineSegment(V(17, 7.5, 0), V(17, 5.5, 0)),  # 13
    Part.ArcOfCircle(Part.Circle(V(14, 5.5, 0), V(0, 0, 1), 3), math.radians(-90), math.radians(0)),  # 14
    Part.LineSegment(V(14, 2.5, 0), V(-1.5, 2.5, 0)),  # 15
], False)
sketch10.addConstraint([
    Sketcher.Constraint("Coincident", 0, 2, 1, 2),
    Sketcher.Constraint("Coincident", 1, 1, 2, 1),
    Sketcher.Constraint("Tangent", 2, 2, 3, 2),
    Sketcher.Constraint("Tangent", 3, 1, 4, 1),
    Sketcher.Constraint("Tangent", 4, 2, 5, 2),
    Sketcher.Constraint("Tangent", 5, 1, 6, 1),
    Sketcher.Constraint("Tangent", 6, 2, 7, 1),
    Sketcher.Constraint("Tangent", 7, 2, 0, 1),
    Sketcher.Constraint("Coincident", 8, 1, 9, 1),
    Sketcher.Constraint("Tangent", 9, 2, 10, 1),
    Sketcher.Constraint("Tangent", 10, 2, 11, 1),
    Sketcher.Constraint("Tangent", 11, 2, 12, 2),
    Sketcher.Constraint("Tangent", 12, 1, 13, 1),
    Sketcher.Constraint("Tangent", 13, 2, 14, 2),
    Sketcher.Constraint("Tangent", 14, 1, 15, 1),
    Sketcher.Constraint("Coincident", 15, 2, 8, 2),
    Sketcher.Constraint("Vertical", 0),
    Sketcher.Constraint("Horizontal", 2),
    Sketcher.Constraint("Vertical", 4),
    Sketcher.Constraint("Vertical", 9),
    Sketcher.Constraint("Vertical", 13),
    Sketcher.Constraint("Horizontal", 15),
    Sketcher.Constraint("Coincident", 8, 3, 1, 3),
    Sketcher.Constraint("Equal", 3, 5),
    Sketcher.Constraint("Equal", 5, 6),
    Sketcher.Constraint("Equal", 6, 7),
    Sketcher.Constraint("Equal", 1, 8),
    Sketcher.Constraint("Equal", 7, 10),
    Sketcher.Constraint("Equal", 10, 11),
    Sketcher.Constraint("Equal", 11, 12),
    Sketcher.Constraint("Equal", 12, 14),
    Sketcher.Constraint("Symmetric", 6, 3, 10, 3, -1),
    Sketcher.Constraint("Symmetric", 3, 3, 14, 3, -1),
    Sketcher.Constraint("PointOnObject", 1, 3, -1),
    Sketcher.Constraint("Vertical", 5, 3, 6, 3),
    Sketcher.Constraint("Vertical", 6, 2, 10, 2),
    Sketcher.Constraint("Radius", 3, 3.0),
    Sketcher.Constraint("DistanceY", 4, 2, 4, 1, 2.0),
    Sketcher.Constraint("DistanceX", -1, 1, 3, 3, 14.0),
    Sketcher.Constraint("DistanceY", 3, 3, 10, 3, 19.0),
    Sketcher.Constraint("Radius", 1, 18.468279),
    Sketcher.Constraint("DistanceX", 2, 1, 2, 2, 15.541584),
    Sketcher.Constraint("DistanceX", 15, 2, 10, 2, 12.795229),
])
pocket6 = body.newObject("PartDesign::Pocket", "Pocket005")
pocket6.Profile = sketch10
pocket6.Length = 9
doc.recompute()

fillet = body.newObject("PartDesign::Fillet", "Fillet")
fillet.Base = (pocket6, edges_at(pocket6, [
    (-57, -23.703, -18),
    (-57, 23.703, -18),
    (25, 0, -5),
    (25, 16.527, -11.5),
    (25, -16.527, -11.5),
    (25, -27.887, -18),
    (35.225, 0, -18),
]))
fillet.Radius = 3
doc.recompute()

fillet2 = body.newObject("PartDesign::Fillet", "Fillet001")
fillet2.Base = (fillet, edges_at(fillet, [(0, -90, -25)]))
fillet2.Radius = 2
body2 = doc.addObject("PartDesign::Body", "Body001")

# Sketch on XY plane
sketch11 = body2.newObject("Sketcher::SketchObject", "Sketch010")
sketch11.AttachmentSupport = (doc.getObject("XY_Plane001"), [""])
sketch11.MapMode = "FlatFace"
sketch11.addGeometry([
    Part.ArcOfCircle(Part.Circle(V(70, 80, 0), V(0, 0, 1), 10), math.radians(0), math.radians(90)),  # 0
    Part.LineSegment(V(70, 90, 0), V(33, 90, 0)),  # 1
    Part.LineSegment(V(33, 90, 0), V(15, 108, 0)),  # 2
    Part.LineSegment(V(15, 108, 0), V(15, 120, 0)),  # 3
    Part.ArcOfCircle(Part.Circle(V(0, 120, 0), V(0, 0, 1), 15), math.radians(0), math.radians(180)),  # 4
    Part.LineSegment(V(-15, 120, 0), V(-15, 108, 0)),  # 5
    Part.LineSegment(V(-15, 108, 0), V(-33, 90, 0)),  # 6
    Part.LineSegment(V(-33, 90, 0), V(-70, 90, 0)),  # 7
    Part.ArcOfCircle(Part.Circle(V(-70, 80, 0), V(0, 0, 1), 10), math.radians(90), math.radians(180)),  # 8
    Part.LineSegment(V(-80, 80, 0), V(-80, -80, 0)),  # 9
    Part.ArcOfCircle(Part.Circle(V(-70, -80, 0), V(0, 0, 1), 10), math.radians(180), math.radians(270)),  # 10
    Part.LineSegment(V(-70, -90, 0), V(-33, -90, 0)),  # 11
    Part.LineSegment(V(-33, -90, 0), V(-15, -108, 0)),  # 12
    Part.LineSegment(V(-15, -108, 0), V(-15, -120, 0)),  # 13
    Part.ArcOfCircle(Part.Circle(V(0, -120, 0), V(0, 0, 1), 15), math.radians(180), math.radians(360)),  # 14
    Part.LineSegment(V(15, -120, 0), V(15, -108, 0)),  # 15
    Part.LineSegment(V(15, -108, 0), V(33, -90, 0)),  # 16
    Part.LineSegment(V(33, -90, 0), V(70, -90, 0)),  # 17
    Part.ArcOfCircle(Part.Circle(V(70, -80, 0), V(0, 0, 1), 10), math.radians(-90), math.radians(0)),  # 18
    Part.LineSegment(V(80, -80, 0), V(80, 80, 0)),  # 19
    Part.Circle(V(0, -120, 0), V(0, 0, 1), 6),  # 20
    Part.Circle(V(0, 120, 0), V(0, 0, 1), 6),  # 21
], False)
sketch11.addConstraint([
    Sketcher.Constraint("Tangent", 0, 2, 1, 1),
    Sketcher.Constraint("Coincident", 1, 2, 2, 1),
    Sketcher.Constraint("Coincident", 2, 2, 3, 1),
    Sketcher.Constraint("Tangent", 3, 2, 4, 1),
    Sketcher.Constraint("Tangent", 4, 2, 5, 1),
    Sketcher.Constraint("Coincident", 5, 2, 6, 1),
    Sketcher.Constraint("Coincident", 6, 2, 7, 1),
    Sketcher.Constraint("Tangent", 7, 2, 8, 1),
    Sketcher.Constraint("Tangent", 8, 2, 9, 1),
    Sketcher.Constraint("Tangent", 9, 2, 10, 1),
    Sketcher.Constraint("Tangent", 10, 2, 11, 1),
    Sketcher.Constraint("Coincident", 11, 2, 12, 1),
    Sketcher.Constraint("Coincident", 12, 2, 13, 1),
    Sketcher.Constraint("Tangent", 13, 2, 14, 1),
    Sketcher.Constraint("Tangent", 14, 2, 15, 1),
    Sketcher.Constraint("Coincident", 15, 2, 16, 1),
    Sketcher.Constraint("Coincident", 16, 2, 17, 1),
    Sketcher.Constraint("Tangent", 17, 2, 18, 1),
    Sketcher.Constraint("Tangent", 18, 2, 19, 1),
    Sketcher.Constraint("Tangent", 19, 2, 0, 1),
    Sketcher.Constraint("Horizontal", 1),
    Sketcher.Constraint("Vertical", 3),
    Sketcher.Constraint("Vertical", 5),
    Sketcher.Constraint("Horizontal", 7),
    Sketcher.Constraint("Vertical", 9),
    Sketcher.Constraint("Horizontal", 11),
    Sketcher.Constraint("Vertical", 13),
    Sketcher.Constraint("Vertical", 15),
    Sketcher.Constraint("Horizontal", 17),
    Sketcher.Constraint("Vertical", 19),
    Sketcher.Constraint("Coincident", 20, 3, 14, 3),
    Sketcher.Constraint("Coincident", 21, 3, 4, 3),
    Sketcher.Constraint("Equal", 0, 8),
    Sketcher.Constraint("Equal", 8, 10),
    Sketcher.Constraint("Equal", 4, 14),
    Sketcher.Constraint("Equal", 10, 18),
    Sketcher.Constraint("Equal", 20, 21),
    Sketcher.Constraint("Symmetric", 0, 3, 10, 3, -1, 1),
    Sketcher.Constraint("Symmetric", 4, 3, 14, 3, -1, 1),
    Sketcher.Constraint("Symmetric", 6, 2, 16, 2, -1, 1),
    Sketcher.Constraint("Symmetric", 2, 2, 5, 2, -2),
    Sketcher.Constraint("Symmetric", 1, 2, 6, 2, -2),
    Sketcher.Constraint("Perpendicular", 2, 6),
    Sketcher.Constraint("Perpendicular", 6, 12),
    Sketcher.Constraint("Perpendicular", 12, 16),
    Sketcher.Constraint("Horizontal", 12, 2, 15, 2),
    Sketcher.Constraint("Diameter", 20, 12.0),
    Sketcher.Constraint("Radius", 0, 10.0),
    Sketcher.Constraint("Radius", 4, 15.0),
    Sketcher.Constraint("DistanceX", 1, 2, 1, 1, 37.0),
    Sketcher.Constraint("DistanceY", 3, 1, 3, 2, 12.0),
    Sketcher.Constraint("DistanceY", 9, 2, 9, 1, 160.0),
    Sketcher.Constraint("DistanceX", -1, 1, 0, 3, 70.0),
])
pad5 = body2.newObject("PartDesign::Pad", "Pad004")
pad5.Profile = sketch11
pad5.Length = 25
pad5.Reversed = True

doc.recompute()
